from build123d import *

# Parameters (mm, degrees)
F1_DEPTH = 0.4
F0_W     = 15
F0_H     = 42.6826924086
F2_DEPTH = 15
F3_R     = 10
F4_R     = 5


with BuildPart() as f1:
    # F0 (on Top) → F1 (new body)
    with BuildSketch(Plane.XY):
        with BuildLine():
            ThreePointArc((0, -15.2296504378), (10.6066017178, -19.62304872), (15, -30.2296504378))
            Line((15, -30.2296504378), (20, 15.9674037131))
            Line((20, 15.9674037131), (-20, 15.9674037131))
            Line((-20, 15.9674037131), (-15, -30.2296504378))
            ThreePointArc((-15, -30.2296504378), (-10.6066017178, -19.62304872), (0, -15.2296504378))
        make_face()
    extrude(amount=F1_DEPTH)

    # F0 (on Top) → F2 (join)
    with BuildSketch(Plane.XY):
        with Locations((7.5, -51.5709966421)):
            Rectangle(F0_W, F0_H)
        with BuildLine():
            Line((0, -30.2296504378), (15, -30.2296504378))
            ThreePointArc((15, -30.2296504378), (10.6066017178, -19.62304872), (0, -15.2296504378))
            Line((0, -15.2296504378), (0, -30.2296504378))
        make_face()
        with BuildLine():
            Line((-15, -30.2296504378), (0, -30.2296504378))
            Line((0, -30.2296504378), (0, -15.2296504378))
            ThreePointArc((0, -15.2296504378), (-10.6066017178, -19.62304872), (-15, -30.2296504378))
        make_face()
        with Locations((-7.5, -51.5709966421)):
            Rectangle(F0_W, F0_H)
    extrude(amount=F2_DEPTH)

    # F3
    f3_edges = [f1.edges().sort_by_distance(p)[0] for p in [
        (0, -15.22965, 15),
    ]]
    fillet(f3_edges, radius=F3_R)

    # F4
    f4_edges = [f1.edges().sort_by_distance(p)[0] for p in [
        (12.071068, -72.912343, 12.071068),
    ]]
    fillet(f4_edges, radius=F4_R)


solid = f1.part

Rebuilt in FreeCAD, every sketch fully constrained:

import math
import FreeCAD as App
import Part
import Sketcher
from FreeCAD import Vector


def edges_at(feature, points):
    """Names of the edges that pass closest to the given points."""
    edges = feature.Shape.Edges
    near = lambda p: min(range(len(edges)), key=lambda i: edges[i].distToShape(Part.Vertex(*p))[0])
    return sorted({f"Edge{near(p) + 1}" for p in points})

doc = App.newDocument("Part")
body = doc.addObject("PartDesign::Body", "Body")

sketch1 = body.newObject("Sketcher::SketchObject", "Sketch")
sketch1.AttachmentSupport = (doc.getObject("XY_Plane"), [""])
sketch1.MapMode = "FlatFace"
sketch1.addGeometry(Part.LineSegment(Vector(15, -30.22965, 0), Vector(20, 15.967404, 0)), False)
sketch1.addGeometry(Part.LineSegment(Vector(20, 15.967404, 0), Vector(-20, 15.967404, 0)), False)
sketch1.addGeometry(Part.LineSegment(Vector(-20, 15.967404, 0), Vector(-15, -30.22965, 0)), False)
sketch1.addGeometry(Part.ArcOfCircle(Part.Circle(Vector(0, -30.22965, 0), Vector(0, 0, 1), 15), math.radians(0), math.radians(180)), False)
sketch1.addConstraint(Sketcher.Constraint("Coincident", 0, 2, 1, 1))
sketch1.addConstraint(Sketcher.Constraint("Coincident", 1, 2, 2, 1))
sketch1.addConstraint(Sketcher.Constraint("Coincident", 2, 2, 3, 2))
sketch1.addConstraint(Sketcher.Constraint("Coincident", 3, 1, 0, 1))
sketch1.addConstraint(Sketcher.Constraint("Horizontal", 1))
sketch1.addConstraint(Sketcher.Constraint("Symmetric", 2, 2, 3, 1, -2))
sketch1.addConstraint(Sketcher.Constraint("Horizontal", 3, 3, 2, 2))
sketch1.addConstraint(Sketcher.Constraint("Equal", 0, 2))
sketch1.addConstraint(Sketcher.Constraint("Radius", 3, 15.0))
sketch1.addConstraint(Sketcher.Constraint("DistanceX", 1, 2, 1, 1, 40.0))
sketch1.addConstraint(Sketcher.Constraint("DistanceY", 3, 3, -1, 1, 30.22965))
sketch1.addConstraint(Sketcher.Constraint("Distance", 0, 46.466846))
pad1 = body.newObject("PartDesign::Pad", "Pad")
pad1.Profile = sketch1
pad1.Length = 0.4

sketch2 = body.newObject("Sketcher::SketchObject", "Sketch001")
sketch2.AttachmentSupport = (doc.getObject("XY_Plane"), [""])
sketch2.MapMode = "FlatFace"
sketch2.addGeometry(Part.LineSegment(Vector(15, -72.912343, 0), Vector(15, -30.22965, 0)), False)
sketch2.addGeometry(Part.ArcOfCircle(Part.Circle(Vector(0, -30.22965, 0), Vector(0, 0, 1), 15), math.radians(0), math.radians(180)), False)
sketch2.addGeometry(Part.LineSegment(Vector(-15, -30.22965, 0), Vector(-15, -72.912343, 0)), False)
sketch2.addGeometry(Part.LineSegment(Vector(-15, -72.912343, 0), Vector(15, -72.912343, 0)), False)
sketch2.addConstraint(Sketcher.Constraint("Tangent", 0, 2, 1, 1))
sketch2.addConstraint(Sketcher.Constraint("Tangent", 1, 2, 2, 1))
sketch2.addConstraint(Sketcher.Constraint("Coincident", 2, 2, 3, 1))
sketch2.addConstraint(Sketcher.Constraint("Coincident", 3, 2, 0, 1))
sketch2.addConstraint(Sketcher.Constraint("Vertical", 0))
sketch2.addConstraint(Sketcher.Constraint("Vertical", 2))
sketch2.addConstraint(Sketcher.Constraint("Horizontal", 3))
sketch2.addConstraint(Sketcher.Constraint("PointOnObject", 1, 3, -2))
sketch2.addConstraint(Sketcher.Constraint("Radius", 1, 15.0))
sketch2.addConstraint(Sketcher.Constraint("DistanceY", 0, 1, 0, 2, 42.682692))
sketch2.addConstraint(Sketcher.Constraint("DistanceY", 1, 3, -1, 1, 30.22965))
pad2 = body.newObject("PartDesign::Pad", "Pad001")
pad2.Profile = sketch2
pad2.Length = 15
doc.recompute()

fillet = body.newObject("PartDesign::Fillet", "Fillet")
fillet.Base = (pad2, edges_at(pad2, [(0, -15.23, 15)]))
fillet.Radius = 10
doc.recompute()

fillet2 = body.newObject("PartDesign::Fillet", "Fillet001")
fillet2.Base = (fillet, edges_at(fillet, [(12.071, -72.912, 12.071)]))
fillet2.Radius = 5

doc.recompute()
